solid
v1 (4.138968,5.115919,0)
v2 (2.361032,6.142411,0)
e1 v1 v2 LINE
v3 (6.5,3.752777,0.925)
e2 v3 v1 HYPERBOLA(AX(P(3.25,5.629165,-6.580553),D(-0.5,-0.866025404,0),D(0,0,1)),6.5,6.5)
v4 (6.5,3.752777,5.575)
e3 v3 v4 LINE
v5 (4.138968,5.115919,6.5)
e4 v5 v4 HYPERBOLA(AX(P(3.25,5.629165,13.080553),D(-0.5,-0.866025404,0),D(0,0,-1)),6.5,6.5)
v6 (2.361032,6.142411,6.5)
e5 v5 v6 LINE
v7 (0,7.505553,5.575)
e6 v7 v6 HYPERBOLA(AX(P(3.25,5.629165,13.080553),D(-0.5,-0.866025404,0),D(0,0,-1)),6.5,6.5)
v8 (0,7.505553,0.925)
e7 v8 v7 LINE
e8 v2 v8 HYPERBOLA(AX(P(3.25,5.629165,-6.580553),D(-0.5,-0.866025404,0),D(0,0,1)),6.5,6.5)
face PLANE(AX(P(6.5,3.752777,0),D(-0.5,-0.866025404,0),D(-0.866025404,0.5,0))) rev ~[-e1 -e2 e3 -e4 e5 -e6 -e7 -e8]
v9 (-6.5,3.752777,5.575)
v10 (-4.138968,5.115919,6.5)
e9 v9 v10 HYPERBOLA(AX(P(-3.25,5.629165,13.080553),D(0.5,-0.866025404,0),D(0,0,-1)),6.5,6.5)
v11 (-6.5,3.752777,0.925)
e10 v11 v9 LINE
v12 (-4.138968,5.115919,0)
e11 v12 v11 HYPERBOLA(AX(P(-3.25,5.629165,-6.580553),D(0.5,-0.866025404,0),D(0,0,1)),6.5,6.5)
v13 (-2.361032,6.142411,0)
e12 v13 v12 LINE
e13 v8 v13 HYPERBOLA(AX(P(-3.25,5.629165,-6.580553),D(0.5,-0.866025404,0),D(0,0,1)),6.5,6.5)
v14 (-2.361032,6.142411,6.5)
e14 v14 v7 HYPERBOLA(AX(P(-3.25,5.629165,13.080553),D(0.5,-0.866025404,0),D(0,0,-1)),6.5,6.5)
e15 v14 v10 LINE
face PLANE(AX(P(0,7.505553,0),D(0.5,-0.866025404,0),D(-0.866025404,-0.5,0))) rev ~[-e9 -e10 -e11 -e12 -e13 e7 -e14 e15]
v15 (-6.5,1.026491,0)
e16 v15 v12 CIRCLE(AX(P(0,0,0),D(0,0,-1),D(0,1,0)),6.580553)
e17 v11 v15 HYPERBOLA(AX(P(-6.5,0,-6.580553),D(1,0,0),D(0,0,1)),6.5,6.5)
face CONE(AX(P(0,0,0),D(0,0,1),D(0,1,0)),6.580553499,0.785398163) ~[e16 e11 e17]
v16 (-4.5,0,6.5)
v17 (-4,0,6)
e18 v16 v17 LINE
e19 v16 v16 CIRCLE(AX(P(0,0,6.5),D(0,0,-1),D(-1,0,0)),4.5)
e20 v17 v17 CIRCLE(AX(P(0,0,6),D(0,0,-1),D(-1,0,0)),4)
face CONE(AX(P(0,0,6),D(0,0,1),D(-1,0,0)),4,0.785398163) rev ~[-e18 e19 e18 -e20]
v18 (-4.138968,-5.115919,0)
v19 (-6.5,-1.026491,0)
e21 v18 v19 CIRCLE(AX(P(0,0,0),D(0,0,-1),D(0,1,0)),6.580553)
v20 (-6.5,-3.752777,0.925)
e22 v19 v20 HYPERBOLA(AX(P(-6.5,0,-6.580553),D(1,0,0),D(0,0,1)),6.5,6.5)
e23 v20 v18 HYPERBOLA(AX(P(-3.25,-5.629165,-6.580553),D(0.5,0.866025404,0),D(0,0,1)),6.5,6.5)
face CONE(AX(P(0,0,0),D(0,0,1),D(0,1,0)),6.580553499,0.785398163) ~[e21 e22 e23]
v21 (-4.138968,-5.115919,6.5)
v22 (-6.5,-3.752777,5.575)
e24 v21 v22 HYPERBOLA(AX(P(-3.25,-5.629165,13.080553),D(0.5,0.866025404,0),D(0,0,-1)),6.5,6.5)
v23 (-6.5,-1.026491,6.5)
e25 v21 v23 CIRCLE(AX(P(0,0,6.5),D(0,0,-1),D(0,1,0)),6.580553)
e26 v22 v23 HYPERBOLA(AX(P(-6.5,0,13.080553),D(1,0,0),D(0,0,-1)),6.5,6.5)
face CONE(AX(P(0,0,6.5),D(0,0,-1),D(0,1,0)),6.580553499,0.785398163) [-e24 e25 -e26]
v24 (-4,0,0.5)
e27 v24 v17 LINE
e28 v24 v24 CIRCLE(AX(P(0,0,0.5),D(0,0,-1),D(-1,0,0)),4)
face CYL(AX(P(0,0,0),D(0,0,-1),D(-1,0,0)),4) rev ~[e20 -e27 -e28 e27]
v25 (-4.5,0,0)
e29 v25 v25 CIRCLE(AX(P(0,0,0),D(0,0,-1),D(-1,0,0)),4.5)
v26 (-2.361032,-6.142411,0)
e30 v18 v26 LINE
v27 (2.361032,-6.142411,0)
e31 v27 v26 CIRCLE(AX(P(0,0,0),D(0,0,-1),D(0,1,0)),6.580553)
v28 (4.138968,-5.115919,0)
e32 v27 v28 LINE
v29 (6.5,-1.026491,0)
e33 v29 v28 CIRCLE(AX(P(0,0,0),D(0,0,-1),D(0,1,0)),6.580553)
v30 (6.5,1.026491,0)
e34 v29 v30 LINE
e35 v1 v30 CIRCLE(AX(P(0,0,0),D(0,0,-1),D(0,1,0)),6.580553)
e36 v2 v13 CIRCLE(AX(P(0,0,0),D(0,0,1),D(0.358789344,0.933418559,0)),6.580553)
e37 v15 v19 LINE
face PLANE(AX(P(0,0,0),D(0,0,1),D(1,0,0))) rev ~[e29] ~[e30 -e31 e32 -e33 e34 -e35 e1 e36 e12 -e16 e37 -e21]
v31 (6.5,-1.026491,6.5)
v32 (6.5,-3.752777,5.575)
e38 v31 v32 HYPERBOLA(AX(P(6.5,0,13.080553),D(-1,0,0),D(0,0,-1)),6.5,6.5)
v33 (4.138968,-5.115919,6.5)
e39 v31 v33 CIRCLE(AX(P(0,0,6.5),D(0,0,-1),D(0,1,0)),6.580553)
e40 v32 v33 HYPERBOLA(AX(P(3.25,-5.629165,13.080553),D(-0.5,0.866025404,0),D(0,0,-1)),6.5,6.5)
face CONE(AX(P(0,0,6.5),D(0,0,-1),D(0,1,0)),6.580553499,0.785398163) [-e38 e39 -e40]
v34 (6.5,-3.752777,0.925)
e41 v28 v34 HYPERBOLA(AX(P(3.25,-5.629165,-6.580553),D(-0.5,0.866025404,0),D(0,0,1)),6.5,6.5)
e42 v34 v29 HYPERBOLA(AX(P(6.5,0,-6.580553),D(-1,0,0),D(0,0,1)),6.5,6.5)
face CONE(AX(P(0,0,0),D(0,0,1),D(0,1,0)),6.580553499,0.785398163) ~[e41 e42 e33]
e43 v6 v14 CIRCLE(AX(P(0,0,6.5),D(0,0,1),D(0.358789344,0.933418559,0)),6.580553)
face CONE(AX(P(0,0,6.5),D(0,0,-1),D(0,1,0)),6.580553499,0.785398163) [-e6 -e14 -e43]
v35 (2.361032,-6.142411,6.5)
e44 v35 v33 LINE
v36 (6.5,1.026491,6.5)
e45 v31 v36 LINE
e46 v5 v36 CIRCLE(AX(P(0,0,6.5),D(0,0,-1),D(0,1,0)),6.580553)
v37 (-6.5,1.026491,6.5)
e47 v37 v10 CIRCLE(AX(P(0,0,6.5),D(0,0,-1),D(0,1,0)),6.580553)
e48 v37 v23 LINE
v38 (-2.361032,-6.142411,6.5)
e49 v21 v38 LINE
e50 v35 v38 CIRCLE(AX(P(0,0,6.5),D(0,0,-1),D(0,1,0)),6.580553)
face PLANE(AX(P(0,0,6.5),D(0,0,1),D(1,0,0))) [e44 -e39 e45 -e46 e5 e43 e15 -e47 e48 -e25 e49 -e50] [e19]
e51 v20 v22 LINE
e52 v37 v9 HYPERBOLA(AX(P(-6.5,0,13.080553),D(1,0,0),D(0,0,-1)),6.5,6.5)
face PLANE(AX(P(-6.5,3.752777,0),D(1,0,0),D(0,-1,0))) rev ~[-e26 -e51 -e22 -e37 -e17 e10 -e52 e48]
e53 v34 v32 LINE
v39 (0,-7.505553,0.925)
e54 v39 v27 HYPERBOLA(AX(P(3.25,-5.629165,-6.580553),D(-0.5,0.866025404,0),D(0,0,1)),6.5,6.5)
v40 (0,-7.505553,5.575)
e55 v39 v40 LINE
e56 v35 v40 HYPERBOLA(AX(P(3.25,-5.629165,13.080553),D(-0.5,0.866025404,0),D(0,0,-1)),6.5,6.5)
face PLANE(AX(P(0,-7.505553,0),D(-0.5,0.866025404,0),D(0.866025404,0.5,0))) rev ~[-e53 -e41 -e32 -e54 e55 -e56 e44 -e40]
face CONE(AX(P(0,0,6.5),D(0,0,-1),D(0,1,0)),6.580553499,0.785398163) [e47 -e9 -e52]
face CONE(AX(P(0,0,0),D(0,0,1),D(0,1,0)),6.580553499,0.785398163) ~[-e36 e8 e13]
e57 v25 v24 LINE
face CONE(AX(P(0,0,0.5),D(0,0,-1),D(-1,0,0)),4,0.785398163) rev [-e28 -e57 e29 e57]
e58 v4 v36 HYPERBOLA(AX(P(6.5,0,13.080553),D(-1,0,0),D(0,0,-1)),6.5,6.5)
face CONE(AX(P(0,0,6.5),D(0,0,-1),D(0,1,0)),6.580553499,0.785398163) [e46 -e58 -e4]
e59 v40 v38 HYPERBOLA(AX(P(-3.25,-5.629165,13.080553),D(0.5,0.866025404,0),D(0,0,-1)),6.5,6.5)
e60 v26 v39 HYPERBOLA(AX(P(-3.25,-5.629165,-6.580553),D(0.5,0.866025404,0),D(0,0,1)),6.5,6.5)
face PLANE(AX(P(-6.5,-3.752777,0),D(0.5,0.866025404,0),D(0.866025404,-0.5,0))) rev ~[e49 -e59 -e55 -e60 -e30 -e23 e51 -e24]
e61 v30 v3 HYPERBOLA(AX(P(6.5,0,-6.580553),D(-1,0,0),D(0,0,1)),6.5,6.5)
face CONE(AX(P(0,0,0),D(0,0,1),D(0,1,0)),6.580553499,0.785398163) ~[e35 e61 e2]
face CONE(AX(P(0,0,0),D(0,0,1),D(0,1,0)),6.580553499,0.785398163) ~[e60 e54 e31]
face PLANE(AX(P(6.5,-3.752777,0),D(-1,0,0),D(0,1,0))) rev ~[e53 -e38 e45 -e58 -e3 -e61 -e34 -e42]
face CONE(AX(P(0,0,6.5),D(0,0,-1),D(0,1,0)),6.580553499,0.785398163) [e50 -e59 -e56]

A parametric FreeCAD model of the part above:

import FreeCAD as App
import Part
import Sketcher

V = App.Vector
Q = App.Units.Quantity


def edges_at(feature, points):
    """Names of the edges that pass closest to the given points."""
    edges = feature.Shape.Edges
    near = lambda p: min(range(len(edges)), key=lambda i: edges[i].distToShape(Part.Vertex(*p))[0])
    return sorted({f"Edge{near(p) + 1}" for p in points})


def add_polygon(sketch, points):
    """Adds a closed chain of lines whose ends are joined by coincident constraints."""
    first, n = sketch.GeometryCount, len(points)
    for a, b in zip(points, points[1:] + points[:1]):
        sketch.addGeometry(Part.LineSegment(App.Vector(*a, 0), App.Vector(*b, 0)), False)
    for i in range(n):
        sketch.addConstraint(Sketcher.Constraint("Coincident", first + i, 2, first + (i + 1) % n, 1))

doc = App.newDocument("Part")
body = doc.addObject("PartDesign::Body", "Body")

# Sketch on XY plane
sketch1 = body.newObject("Sketcher::SketchObject", "Sketch")
sketch1.AttachmentSupport = (doc.getObject("XY_Plane"), [""])
sketch1.MapMode = "FlatFace"
add_polygon(sketch1, [(0, 7.505553), (-6.5, 3.752777), (-6.5, -3.752777), (0, -7.505553), (6.5, -3.752777), (6.5, 3.752777)])  # lines 0-5
sketch1.addConstraint([
    Sketcher.Constraint("Vertical", 1),
    Sketcher.Constraint("Vertical", 4),
    Sketcher.Constraint("Symmetric", 0, 2, 3, 2, -1, 1),
    Sketcher.Constraint("Symmetric", 2, 2, 5, 2, -1, 1),
    Sketcher.Constraint("PointOnObject", 2, 2, -2),
    Sketcher.Constraint("Parallel", 2, 5),
    Sketcher.Constraint("Horizontal", 1, 2, 3, 2),
    Sketcher.Constraint("Angle", 0, Q("-150 deg")),
    Sketcher.Constraint("DistanceX", 1, 2, 3, 2, Q("13 mm")),
    Sketcher.Constraint("DistanceY", 1, 2, 1, 1, Q("7.505554 mm")),
])
pad1 = body.newObject("PartDesign::Pad", "Pad")
pad1.Profile = sketch1
pad1.Length = 6.5

# Sketch on YZ plane
sketch2 = body.newObject("Sketcher::SketchObject", "Sketch001")
sketch2.AttachmentSupport = (doc.getObject("YZ_Plane"), [""])
sketch2.MapMode = "FlatFace"
add_polygon(sketch2, [(7.505553, 6.5), (6.580553, 6.5), (7.505553, 5.575)])  # lines 0-2
add_polygon(sketch2, [(7.505553, 0), (7.505553, 0.925), (6.580553, 0)])  # lines 3-5
sketch2.addConstraint([
    Sketcher.Constraint("Horizontal", 0),
    Sketcher.Constraint("Vertical", 2),
    Sketcher.Constraint("Vertical", 3),
    Sketcher.Constraint("Horizontal", 5),
    Sketcher.Constraint("PointOnObject", 4, 2, -1),
    Sketcher.Constraint("Perpendicular", 1, 4),
    Sketcher.Constraint("Vertical", 2, 2, 3, 2),
    Sketcher.Constraint("Vertical", 0, 2, 4, 2),
    Sketcher.Constraint("Equal", 5, 2),
    Sketcher.Constraint("DistanceY", -1, 1, 0, 2, Q("6.5 mm")),
    Sketcher.Constraint("DistanceX", 0, 2, 0, 1, Q("0.925 mm")),
    Sketcher.Constraint("DistanceX", -1, 1, 0, 2, Q("6.580553 mm")),
])
groove = body.newObject("PartDesign::Groove", "Groove")
groove.Profile = sketch2
groove.ReferenceAxis = (sketch2, ["V_Axis"])
groove.Angle = 360

# Sketch on XY plane
sketch3 = body.newObject("Sketcher::SketchObject", "Sketch002")
sketch3.AttachmentSupport = (doc.getObject("XY_Plane"), [""])
sketch3.MapMode = "FlatFace"
sketch3.addGeometry(Part.Circle(V(0, 0, 0), V(0, 0, 1), 4), False)
sketch3.addConstraint([
    Sketcher.Constraint("Coincident", 0, 3, -1, 1),
    Sketcher.Constraint("Diameter", 0, Q("8 mm")),
])
pocket1 = body.newObject("PartDesign::Pocket", "Pocket")
pocket1.Profile = sketch3
pocket1.Type = "ThroughAll"
pocket1.Reversed = True
doc.recompute()

chamfer = body.newObject("PartDesign::Chamfer", "Chamfer")
chamfer.Base = (pocket1, edges_at(pocket1, [(4, 0, 6.5), (4, 0, 0)]))
chamfer.Size = 0.5

doc.recompute()
